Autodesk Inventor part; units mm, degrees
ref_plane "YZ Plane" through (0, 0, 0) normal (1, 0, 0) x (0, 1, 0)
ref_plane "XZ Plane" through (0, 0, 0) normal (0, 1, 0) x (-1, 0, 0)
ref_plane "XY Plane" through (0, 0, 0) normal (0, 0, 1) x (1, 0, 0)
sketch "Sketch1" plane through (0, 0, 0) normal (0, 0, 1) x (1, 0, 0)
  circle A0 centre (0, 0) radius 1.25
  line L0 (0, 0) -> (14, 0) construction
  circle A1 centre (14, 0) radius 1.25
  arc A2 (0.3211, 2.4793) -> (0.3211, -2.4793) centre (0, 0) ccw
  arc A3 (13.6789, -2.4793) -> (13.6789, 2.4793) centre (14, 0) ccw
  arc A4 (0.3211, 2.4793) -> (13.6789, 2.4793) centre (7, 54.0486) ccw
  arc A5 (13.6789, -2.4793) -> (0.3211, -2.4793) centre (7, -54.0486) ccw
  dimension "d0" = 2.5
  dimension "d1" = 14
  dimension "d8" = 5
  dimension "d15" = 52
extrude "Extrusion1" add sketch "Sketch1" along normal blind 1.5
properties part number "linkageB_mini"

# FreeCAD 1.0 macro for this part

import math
import FreeCAD as App
import Part
import Sketcher

V = App.Vector
Q = App.Units.Quantity

doc = App.newDocument("Part")
body = doc.addObject("PartDesign::Body", "Body")

sketch1 = body.newObject("Sketcher::SketchObject", "Sketch")
sketch1.AttachmentSupport = (doc.getObject("XY_Plane"), [""])
sketch1.MapMode = "FlatFace"
sketch1.addGeometry([
    Part.ArcOfCircle(Part.Circle(V(7, 54, 0), V(0, 0, 1), 52), math.radians(-97.38), math.radians(-82.62)),
    Part.ArcOfCircle(Part.Circle(V(0, 0, 0), V(0, 0, 1), 2.5), math.radians(83), math.radians(277)),
    Part.ArcOfCircle(Part.Circle(V(7, -54, 0), V(0, 0, 1), 52), math.radians(82.62), math.radians(97.38)),
    Part.ArcOfCircle(Part.Circle(V(14, 0, 0), V(0, 0, 1), 2.5), math.radians(-97), math.radians(97)),
    Part.Circle(V(0, 0, 0), V(0, 0, 1), 1.2),
    Part.Circle(V(14, 0, 0), V(0, 0, 1), 1.2),
], False)
sketch1.addConstraint([
    Sketcher.Constraint("Tangent", 0, 1, 1, 1),
    Sketcher.Constraint("Tangent", 1, 2, 2, 2),
    Sketcher.Constraint("Tangent", 2, 1, 3, 1),
    Sketcher.Constraint("Tangent", 3, 2, 0, 2),
    Sketcher.Constraint("Coincident", 1, 3, -1, 1),
    Sketcher.Constraint("Coincident", 4, 3, -1, 1),
    Sketcher.Constraint("Coincident", 5, 3, 3, 3),
    Sketcher.Constraint("Equal", 0, 2),
    Sketcher.Constraint("Equal", 1, 3),
    Sketcher.Constraint("Equal", 4, 5),
    Sketcher.Constraint("PointOnObject", 3, 3, -1),
    Sketcher.Constraint("Radius", 0, Q("52 mm")),
    Sketcher.Constraint("Diameter", 4, Q("2.5 mm")),
    Sketcher.Constraint("Radius", 1, Q("2.5 mm")),
    Sketcher.Constraint("DistanceX", -1, 1, 3, 3, Q("14 mm")),
])
pad1 = body.newObject("PartDesign::Pad", "Pad")
pad1.Profile = sketch1
pad1.Length = 1.5

doc.recompute()
